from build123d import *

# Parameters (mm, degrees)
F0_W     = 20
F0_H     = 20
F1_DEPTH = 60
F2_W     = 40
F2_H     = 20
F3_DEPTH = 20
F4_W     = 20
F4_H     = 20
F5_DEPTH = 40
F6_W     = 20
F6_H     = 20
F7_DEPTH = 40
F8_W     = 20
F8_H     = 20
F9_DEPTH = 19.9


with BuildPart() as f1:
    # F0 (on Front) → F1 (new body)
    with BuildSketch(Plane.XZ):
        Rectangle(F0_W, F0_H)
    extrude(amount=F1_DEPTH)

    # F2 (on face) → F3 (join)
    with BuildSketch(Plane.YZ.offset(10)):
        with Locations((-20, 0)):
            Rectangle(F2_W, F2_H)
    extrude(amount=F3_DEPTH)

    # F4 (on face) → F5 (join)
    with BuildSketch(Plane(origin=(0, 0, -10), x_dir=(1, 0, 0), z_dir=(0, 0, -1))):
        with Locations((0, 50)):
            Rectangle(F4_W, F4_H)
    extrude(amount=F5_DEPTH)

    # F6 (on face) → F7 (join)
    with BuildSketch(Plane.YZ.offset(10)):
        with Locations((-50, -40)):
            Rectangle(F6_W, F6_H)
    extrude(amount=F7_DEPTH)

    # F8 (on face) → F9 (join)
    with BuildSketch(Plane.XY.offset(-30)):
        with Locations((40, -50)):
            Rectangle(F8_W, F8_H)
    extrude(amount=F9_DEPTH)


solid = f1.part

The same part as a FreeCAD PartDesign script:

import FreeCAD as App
import Part
import Sketcher
from FreeCAD import Vector


def add_polygon(sketch, points):
    """Adds a closed chain of lines whose ends are joined by coincident constraints."""
    first, n = sketch.GeometryCount, len(points)
    for a, b in zip(points, points[1:] + points[:1]):
        sketch.addGeometry(Part.LineSegment(App.Vector(*a, 0), App.Vector(*b, 0)), False)
    for i in range(n):
        sketch.addConstraint(Sketcher.Constraint("Coincident", first + i, 2, first + (i + 1) % n, 1))

doc = App.newDocument("Part")
body = doc.addObject("PartDesign::Body", "Body")

# Sketch on XZ plane
sketch1 = body.newObject("Sketcher::SketchObject", "Sketch")
sketch1.AttachmentSupport = (doc.getObject("XZ_Plane"), [""])
sketch1.MapMode = "FlatFace"
add_polygon(sketch1, [(-10, 10), (-10, -10), (10, -10), (10, 10)])  # lines 0-3
sketch1.addConstraint([
    Sketcher.Constraint("Vertical", 0),
    Sketcher.Constraint("Horizontal", 1),
    Sketcher.Constraint("Vertical", 2),
    Sketcher.Constraint("Horizontal", 3),
    Sketcher.Constraint("Symmetric", 0, 2, 2, 2, -1, 1),
    Sketcher.Constraint("Equal", 3, 0),
    Sketcher.Constraint("DistanceX", 1, 1, 1, 2, 20.0),
])
pad1 = body.newObject("PartDesign::Pad", "Pad")
pad1.Profile = sketch1
pad1.Length = 60

# Sketch on YZ plane
sketch2 = body.newObject("Sketcher::SketchObject", "Sketch001")
sketch2.AttachmentSupport = (doc.getObject("YZ_Plane"), [""])
sketch2.MapMode = "FlatFace"
sketch2.AttachmentOffset = App.Placement(Vector(0, 0, 10), App.Rotation())
add_polygon(sketch2, [(-40, 10), (-40, -10), (0, -10), (0, 10)])  # lines 0-3
sketch2.addConstraint([
    Sketcher.Constraint("Vertical", 0),
    Sketcher.Constraint("Horizontal", 1),
    Sketcher.Constraint("Vertical", 2),
    Sketcher.Constraint("Horizontal", 3),
    Sketcher.Constraint("Symmetric", 1, 2, 2, 2, -1, 1),
    Sketcher.Constraint("DistanceX", 1, 1, 1, 2, 40.0),
    Sketcher.Constraint("DistanceY", 0, 2, 0, 1, 20.0),
])
pad2 = body.newObject("PartDesign::Pad", "Pad001")
pad2.Profile = sketch2
pad2.Length = 20

# Sketch on XY plane
sketch3 = body.newObject("Sketcher::SketchObject", "Sketch002")
sketch3.AttachmentSupport = (doc.getObject("XY_Plane"), [""])
sketch3.MapMode = "FlatFace"
sketch3.AttachmentOffset = App.Placement(Vector(0, 0, -10), App.Rotation())
add_polygon(sketch3, [(-10, -60), (-10, -40), (10, -40), (10, -60)])  # lines 0-3
sketch3.addConstraint([
    Sketcher.Constraint("Vertical", 0),
    Sketcher.Constraint("Horizontal", 1),
    Sketcher.Constraint("Vertical", 2),
    Sketcher.Constraint("Horizontal", 3),
    Sketcher.Constraint("Equal", 3, 0),
    Sketcher.Constraint("DistanceX", 1, 1, 1, 2, 20.0),
    Sketcher.Constraint("DistanceX", 0, 2, -1, 1, 10.0),
    Sketcher.Constraint("DistanceY", 0, 2, -1, 1, 40.0),
])
pad3 = body.newObject("PartDesign::Pad", "Pad002")
pad3.Profile = sketch3
pad3.Length = 40
pad3.Reversed = True

# Sketch on YZ plane
sketch4 = body.newObject("Sketcher::SketchObject", "Sketch003")
sketch4.AttachmentSupport = (doc.getObject("YZ_Plane"), [""])
sketch4.MapMode = "FlatFace"
sketch4.AttachmentOffset = App.Placement(Vector(0, 0, 10), App.Rotation())
add_polygon(sketch4, [(-60, -30), (-60, -50), (-40, -50), (-40, -30)])  # lines 0-3
sketch4.addConstraint([
    Sketcher.Constraint("Vertical", 0),
    Sketcher.Constraint("Horizontal", 1),
    Sketcher.Constraint("Vertical", 2),
    Sketcher.Constraint("Horizontal", 3),
    Sketcher.Constraint("Equal", 3, 0),
    Sketcher.Constraint("DistanceX", 1, 1, 1, 2, 20.0),
    Sketcher.Constraint("DistanceX", 0, 2, -1, 1, 60.0),
    Sketcher.Constraint("DistanceY", 0, 2, -1, 1, 50.0),
])
pad4 = body.newObject("PartDesign::Pad", "Pad003")
pad4.Profile = sketch4
pad4.Length = 40

# Sketch on XY plane
sketch5 = body.newObject("Sketcher::SketchObject", "Sketch004")
sketch5.AttachmentSupport = (doc.getObject("XY_Plane"), [""])
sketch5.MapMode = "FlatFace"
sketch5.AttachmentOffset = App.Placement(Vector(0, 0, -30), App.Rotation())
add_polygon(sketch5, [(30, -40), (30, -60), (50, -60), (50, -40)])  # lines 0-3
sketch5.addConstraint([
    Sketcher.Constraint("Vertical", 0),
    Sketcher.Constraint("Horizontal", 1),
    Sketcher.Constraint("Vertical", 2),
    Sketcher.Constraint("Horizontal", 3),
    Sketcher.Constraint("Equal", 3, 0),
    Sketcher.Constraint("DistanceX", 1, 1, 1, 2, 20.0),
    Sketcher.Constraint("DistanceX", -1, 1, 0, 2, 30.0),
    Sketcher.Constraint("DistanceY", 0, 2, -1, 1, 60.0),
])
pad5 = body.newObject("PartDesign::Pad", "Pad004")
pad5.Profile = sketch5
pad5.Length = 19.9

doc.recompute()
